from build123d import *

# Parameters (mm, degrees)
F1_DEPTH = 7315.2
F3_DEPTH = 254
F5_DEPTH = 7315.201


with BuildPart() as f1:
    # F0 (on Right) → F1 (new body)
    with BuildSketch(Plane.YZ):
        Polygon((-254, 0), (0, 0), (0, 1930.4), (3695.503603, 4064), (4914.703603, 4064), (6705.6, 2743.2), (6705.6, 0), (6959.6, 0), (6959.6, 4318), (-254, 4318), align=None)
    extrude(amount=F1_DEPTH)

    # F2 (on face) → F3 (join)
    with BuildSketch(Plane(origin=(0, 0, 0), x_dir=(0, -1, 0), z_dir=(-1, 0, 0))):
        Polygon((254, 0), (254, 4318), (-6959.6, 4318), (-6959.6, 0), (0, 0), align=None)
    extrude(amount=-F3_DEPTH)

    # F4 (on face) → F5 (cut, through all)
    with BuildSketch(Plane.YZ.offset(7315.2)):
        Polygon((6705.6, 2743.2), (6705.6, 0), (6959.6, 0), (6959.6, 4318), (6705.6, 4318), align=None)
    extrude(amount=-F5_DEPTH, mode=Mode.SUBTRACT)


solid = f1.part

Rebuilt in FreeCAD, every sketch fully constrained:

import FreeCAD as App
import Part
import Sketcher
from FreeCAD import Vector
Q = App.Units.Quantity

doc = App.newDocument("Part")
body = doc.addObject("PartDesign::Body", "Body")

# Sketch on YZ plane
sketch1 = body.newObject("Sketcher::SketchObject", "Sketch")
sketch1.AttachmentSupport = (doc.getObject("YZ_Plane"), [""])
sketch1.MapMode = "FlatFace"
sketch1.addGeometry([
    Part.LineSegment(Vector(-254, 0, 0), Vector(0, 0, 0)),  # 0
    Part.LineSegment(Vector(0, 0, 0), Vector(0, 1930, 0)),  # 1
    Part.LineSegment(Vector(0, 1930, 0), Vector(3696, 4064, 0)),  # 2
    Part.LineSegment(Vector(3696, 4064, 0), Vector(4915, 4064, 0)),  # 3
    Part.LineSegment(Vector(4915, 4064, 0), Vector(6706, 2743, 0)),  # 4
    Part.LineSegment(Vector(6706, 2743, 0), Vector(6706, 0, 0)),  # 5
    Part.LineSegment(Vector(6706, 0, 0), Vector(6960, 0, 0)),  # 6
    Part.LineSegment(Vector(6960, 0, 0), Vector(6960, 4318, 0)),  # 7
    Part.LineSegment(Vector(6960, 4318, 0), Vector(-254, 4318, 0)),  # 8
    Part.LineSegment(Vector(-254, 4318, 0), Vector(-254, 0, 0)),  # 9
], False)
sketch1.addConstraint([
    Sketcher.Constraint("Coincident", 0, 2, 1, 1),
    Sketcher.Constraint("Coincident", 1, 2, 2, 1),
    Sketcher.Constraint("Coincident", 2, 2, 3, 1),
    Sketcher.Constraint("Coincident", 3, 2, 4, 1),
    Sketcher.Constraint("Coincident", 4, 2, 5, 1),
    Sketcher.Constraint("Coincident", 5, 2, 6, 1),
    Sketcher.Constraint("Coincident", 6, 2, 7, 1),
    Sketcher.Constraint("Coincident", 7, 2, 8, 1),
    Sketcher.Constraint("Coincident", 8, 2, 9, 1),
    Sketcher.Constraint("Coincident", 9, 2, 0, 1),
    Sketcher.Constraint("Horizontal", 0),
    Sketcher.Constraint("Vertical", 1),
    Sketcher.Constraint("Horizontal", 3),
    Sketcher.Constraint("Vertical", 5),
    Sketcher.Constraint("Horizontal", 6),
    Sketcher.Constraint("Vertical", 7),
    Sketcher.Constraint("Horizontal", 8),
    Sketcher.Constraint("Vertical", 9),
    Sketcher.Constraint("Coincident", 0, 2, -1, 1),
    Sketcher.Constraint("PointOnObject", 5, 2, -1),
    Sketcher.Constraint("Equal", 0, 6),
    Sketcher.Constraint("DistanceX", 0, 1, 0, 2, Q("10 in")),
    Sketcher.Constraint("DistanceX", 3, 1, 3, 2, Q("48 in")),
    Sketcher.Constraint("DistanceX", 8, 2, 8, 1, Q("284 in")),
    Sketcher.Constraint("DistanceY", 1, 1, 1, 2, Q("76 in")),
    Sketcher.Constraint("DistanceY", 5, 2, 5, 1, Q("108 in")),
    Sketcher.Constraint("DistanceY", 7, 1, 7, 2, Q("170 in")),
    Sketcher.Constraint("Distance", 2, Q("168 in")),
    Sketcher.Constraint("DistanceY", -1, 1, 2, 2, Q("160 in")),
])
pad1 = body.newObject("PartDesign::Pad", "Pad")
pad1.Profile = sketch1
pad1.Length = Q("288 in")

# Sketch on YZ plane
sketch2 = body.newObject("Sketcher::SketchObject", "Sketch001")
sketch2.AttachmentSupport = (doc.getObject("YZ_Plane"), [""])
sketch2.MapMode = "FlatFace"
sketch2.addGeometry([
    Part.LineSegment(Vector(-254, 0, 0), Vector(-254, 4318, 0)),
    Part.LineSegment(Vector(-254, 4318, 0), Vector(6960, 4318, 0)),
    Part.LineSegment(Vector(6960, 4318, 0), Vector(6960, 0, 0)),
    Part.LineSegment(Vector(6960, 0, 0), Vector(-254, 0, 0)),
], False)
sketch2.addConstraint([
    Sketcher.Constraint("Coincident", 0, 2, 1, 1),
    Sketcher.Constraint("Coincident", 1, 2, 2, 1),
    Sketcher.Constraint("Coincident", 2, 2, 3, 1),
    Sketcher.Constraint("Coincident", 3, 2, 0, 1),
    Sketcher.Constraint("Vertical", 0),
    Sketcher.Constraint("Horizontal", 1),
    Sketcher.Constraint("Vertical", 2),
    Sketcher.Constraint("Horizontal", 3),
    Sketcher.Constraint("PointOnObject", 2, 2, -1),
    Sketcher.Constraint("DistanceX", 1, 1, 1, 2, Q("284 in")),
    Sketcher.Constraint("DistanceY", 0, 1, 0, 2, Q("170 in")),
    Sketcher.Constraint("DistanceX", 0, 2, -1, 1, Q("10 in")),
])
pad2 = body.newObject("PartDesign::Pad", "Pad001")
pad2.Profile = sketch2
pad2.Length = Q("10 in")

# Sketch on YZ plane
sketch3 = body.newObject("Sketcher::SketchObject", "Sketch002")
sketch3.AttachmentSupport = (doc.getObject("YZ_Plane"), [""])
sketch3.MapMode = "FlatFace"
sketch3.AttachmentOffset = App.Placement(Vector(0, 0, 288 * 25.4), App.Rotation())
sketch3.addGeometry([
    Part.LineSegment(Vector(6706, 0, 0), Vector(6960, 0, 0)),
    Part.LineSegment(Vector(6960, 0, 0), Vector(6960, 4318, 0)),
    Part.LineSegment(Vector(6960, 4318, 0), Vector(6706, 4318, 0)),
    Part.LineSegment(Vector(6706, 4318, 0), Vector(6706, 0, 0)),
], False)
sketch3.addConstraint([
    Sketcher.Constraint("Coincident", 0, 2, 1, 1),
    Sketcher.Constraint("Coincident", 1, 2, 2, 1),
    Sketcher.Constraint("Coincident", 2, 2, 3, 1),
    Sketcher.Constraint("Coincident", 3, 2, 0, 1),
    Sketcher.Constraint("Horizontal", 0),
    Sketcher.Constraint("Vertical", 1),
    Sketcher.Constraint("Horizontal", 2),
    Sketcher.Constraint("Vertical", 3),
    Sketcher.Constraint("PointOnObject", 0, 2, -1),
    Sketcher.Constraint("DistanceX", 0, 1, 0, 2, Q("10 in")),
    Sketcher.Constraint("DistanceY", 1, 1, 1, 2, Q("170 in")),
    Sketcher.Constraint("DistanceX", -1, 1, 0, 2, Q("274 in")),
])
pocket1 = body.newObject("PartDesign::Pocket", "Pocket")
pocket1.Profile = sketch3
pocket1.Type = "ThroughAll"

doc.recompute()
